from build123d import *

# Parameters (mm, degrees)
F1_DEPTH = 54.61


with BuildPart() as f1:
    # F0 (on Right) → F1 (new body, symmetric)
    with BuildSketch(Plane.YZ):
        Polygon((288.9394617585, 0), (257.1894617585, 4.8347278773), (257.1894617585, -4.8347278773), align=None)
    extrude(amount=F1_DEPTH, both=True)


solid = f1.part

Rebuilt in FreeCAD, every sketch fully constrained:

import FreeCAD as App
import Part
import Sketcher
from FreeCAD import Vector
Q = App.Units.Quantity

doc = App.newDocument("Part")
body = doc.addObject("PartDesign::Body", "Body")

# Sketch on YZ plane
sketch1 = body.newObject("Sketcher::SketchObject", "Sketch")
sketch1.AttachmentSupport = (doc.getObject("YZ_Plane"), [""])
sketch1.MapMode = "FlatFace"
sketch1.addGeometry([
    Part.LineSegment(Vector(289, 0, 0), Vector(257, 5, 0)),
    Part.LineSegment(Vector(257, 5, 0), Vector(257, -5, 0)),
    Part.LineSegment(Vector(257, -5, 0), Vector(289, 0, 0)),
], False)
sketch1.addConstraint([
    Sketcher.Constraint("Coincident", 0, 2, 1, 1),
    Sketcher.Constraint("Coincident", 1, 2, 2, 1),
    Sketcher.Constraint("Coincident", 2, 2, 0, 1),
    Sketcher.Constraint("Vertical", 1),
    Sketcher.Constraint("PointOnObject", 2, 2, -1),
    Sketcher.Constraint("Equal", 0, 2),
    Sketcher.Constraint("DistanceX", 0, 2, 2, 2, Q("1.25 in")),
    Sketcher.Constraint("DistanceY", 1, 2, 1, 1, 9.669456),
    Sketcher.Constraint("DistanceX", -1, 1, 0, 2, 257.189462),
])
pad1 = body.newObject("PartDesign::Pad", "Pad")
pad1.Profile = sketch1
pad1.Length = Q("4.3 in")
pad1.Midplane = True

doc.recompute()
